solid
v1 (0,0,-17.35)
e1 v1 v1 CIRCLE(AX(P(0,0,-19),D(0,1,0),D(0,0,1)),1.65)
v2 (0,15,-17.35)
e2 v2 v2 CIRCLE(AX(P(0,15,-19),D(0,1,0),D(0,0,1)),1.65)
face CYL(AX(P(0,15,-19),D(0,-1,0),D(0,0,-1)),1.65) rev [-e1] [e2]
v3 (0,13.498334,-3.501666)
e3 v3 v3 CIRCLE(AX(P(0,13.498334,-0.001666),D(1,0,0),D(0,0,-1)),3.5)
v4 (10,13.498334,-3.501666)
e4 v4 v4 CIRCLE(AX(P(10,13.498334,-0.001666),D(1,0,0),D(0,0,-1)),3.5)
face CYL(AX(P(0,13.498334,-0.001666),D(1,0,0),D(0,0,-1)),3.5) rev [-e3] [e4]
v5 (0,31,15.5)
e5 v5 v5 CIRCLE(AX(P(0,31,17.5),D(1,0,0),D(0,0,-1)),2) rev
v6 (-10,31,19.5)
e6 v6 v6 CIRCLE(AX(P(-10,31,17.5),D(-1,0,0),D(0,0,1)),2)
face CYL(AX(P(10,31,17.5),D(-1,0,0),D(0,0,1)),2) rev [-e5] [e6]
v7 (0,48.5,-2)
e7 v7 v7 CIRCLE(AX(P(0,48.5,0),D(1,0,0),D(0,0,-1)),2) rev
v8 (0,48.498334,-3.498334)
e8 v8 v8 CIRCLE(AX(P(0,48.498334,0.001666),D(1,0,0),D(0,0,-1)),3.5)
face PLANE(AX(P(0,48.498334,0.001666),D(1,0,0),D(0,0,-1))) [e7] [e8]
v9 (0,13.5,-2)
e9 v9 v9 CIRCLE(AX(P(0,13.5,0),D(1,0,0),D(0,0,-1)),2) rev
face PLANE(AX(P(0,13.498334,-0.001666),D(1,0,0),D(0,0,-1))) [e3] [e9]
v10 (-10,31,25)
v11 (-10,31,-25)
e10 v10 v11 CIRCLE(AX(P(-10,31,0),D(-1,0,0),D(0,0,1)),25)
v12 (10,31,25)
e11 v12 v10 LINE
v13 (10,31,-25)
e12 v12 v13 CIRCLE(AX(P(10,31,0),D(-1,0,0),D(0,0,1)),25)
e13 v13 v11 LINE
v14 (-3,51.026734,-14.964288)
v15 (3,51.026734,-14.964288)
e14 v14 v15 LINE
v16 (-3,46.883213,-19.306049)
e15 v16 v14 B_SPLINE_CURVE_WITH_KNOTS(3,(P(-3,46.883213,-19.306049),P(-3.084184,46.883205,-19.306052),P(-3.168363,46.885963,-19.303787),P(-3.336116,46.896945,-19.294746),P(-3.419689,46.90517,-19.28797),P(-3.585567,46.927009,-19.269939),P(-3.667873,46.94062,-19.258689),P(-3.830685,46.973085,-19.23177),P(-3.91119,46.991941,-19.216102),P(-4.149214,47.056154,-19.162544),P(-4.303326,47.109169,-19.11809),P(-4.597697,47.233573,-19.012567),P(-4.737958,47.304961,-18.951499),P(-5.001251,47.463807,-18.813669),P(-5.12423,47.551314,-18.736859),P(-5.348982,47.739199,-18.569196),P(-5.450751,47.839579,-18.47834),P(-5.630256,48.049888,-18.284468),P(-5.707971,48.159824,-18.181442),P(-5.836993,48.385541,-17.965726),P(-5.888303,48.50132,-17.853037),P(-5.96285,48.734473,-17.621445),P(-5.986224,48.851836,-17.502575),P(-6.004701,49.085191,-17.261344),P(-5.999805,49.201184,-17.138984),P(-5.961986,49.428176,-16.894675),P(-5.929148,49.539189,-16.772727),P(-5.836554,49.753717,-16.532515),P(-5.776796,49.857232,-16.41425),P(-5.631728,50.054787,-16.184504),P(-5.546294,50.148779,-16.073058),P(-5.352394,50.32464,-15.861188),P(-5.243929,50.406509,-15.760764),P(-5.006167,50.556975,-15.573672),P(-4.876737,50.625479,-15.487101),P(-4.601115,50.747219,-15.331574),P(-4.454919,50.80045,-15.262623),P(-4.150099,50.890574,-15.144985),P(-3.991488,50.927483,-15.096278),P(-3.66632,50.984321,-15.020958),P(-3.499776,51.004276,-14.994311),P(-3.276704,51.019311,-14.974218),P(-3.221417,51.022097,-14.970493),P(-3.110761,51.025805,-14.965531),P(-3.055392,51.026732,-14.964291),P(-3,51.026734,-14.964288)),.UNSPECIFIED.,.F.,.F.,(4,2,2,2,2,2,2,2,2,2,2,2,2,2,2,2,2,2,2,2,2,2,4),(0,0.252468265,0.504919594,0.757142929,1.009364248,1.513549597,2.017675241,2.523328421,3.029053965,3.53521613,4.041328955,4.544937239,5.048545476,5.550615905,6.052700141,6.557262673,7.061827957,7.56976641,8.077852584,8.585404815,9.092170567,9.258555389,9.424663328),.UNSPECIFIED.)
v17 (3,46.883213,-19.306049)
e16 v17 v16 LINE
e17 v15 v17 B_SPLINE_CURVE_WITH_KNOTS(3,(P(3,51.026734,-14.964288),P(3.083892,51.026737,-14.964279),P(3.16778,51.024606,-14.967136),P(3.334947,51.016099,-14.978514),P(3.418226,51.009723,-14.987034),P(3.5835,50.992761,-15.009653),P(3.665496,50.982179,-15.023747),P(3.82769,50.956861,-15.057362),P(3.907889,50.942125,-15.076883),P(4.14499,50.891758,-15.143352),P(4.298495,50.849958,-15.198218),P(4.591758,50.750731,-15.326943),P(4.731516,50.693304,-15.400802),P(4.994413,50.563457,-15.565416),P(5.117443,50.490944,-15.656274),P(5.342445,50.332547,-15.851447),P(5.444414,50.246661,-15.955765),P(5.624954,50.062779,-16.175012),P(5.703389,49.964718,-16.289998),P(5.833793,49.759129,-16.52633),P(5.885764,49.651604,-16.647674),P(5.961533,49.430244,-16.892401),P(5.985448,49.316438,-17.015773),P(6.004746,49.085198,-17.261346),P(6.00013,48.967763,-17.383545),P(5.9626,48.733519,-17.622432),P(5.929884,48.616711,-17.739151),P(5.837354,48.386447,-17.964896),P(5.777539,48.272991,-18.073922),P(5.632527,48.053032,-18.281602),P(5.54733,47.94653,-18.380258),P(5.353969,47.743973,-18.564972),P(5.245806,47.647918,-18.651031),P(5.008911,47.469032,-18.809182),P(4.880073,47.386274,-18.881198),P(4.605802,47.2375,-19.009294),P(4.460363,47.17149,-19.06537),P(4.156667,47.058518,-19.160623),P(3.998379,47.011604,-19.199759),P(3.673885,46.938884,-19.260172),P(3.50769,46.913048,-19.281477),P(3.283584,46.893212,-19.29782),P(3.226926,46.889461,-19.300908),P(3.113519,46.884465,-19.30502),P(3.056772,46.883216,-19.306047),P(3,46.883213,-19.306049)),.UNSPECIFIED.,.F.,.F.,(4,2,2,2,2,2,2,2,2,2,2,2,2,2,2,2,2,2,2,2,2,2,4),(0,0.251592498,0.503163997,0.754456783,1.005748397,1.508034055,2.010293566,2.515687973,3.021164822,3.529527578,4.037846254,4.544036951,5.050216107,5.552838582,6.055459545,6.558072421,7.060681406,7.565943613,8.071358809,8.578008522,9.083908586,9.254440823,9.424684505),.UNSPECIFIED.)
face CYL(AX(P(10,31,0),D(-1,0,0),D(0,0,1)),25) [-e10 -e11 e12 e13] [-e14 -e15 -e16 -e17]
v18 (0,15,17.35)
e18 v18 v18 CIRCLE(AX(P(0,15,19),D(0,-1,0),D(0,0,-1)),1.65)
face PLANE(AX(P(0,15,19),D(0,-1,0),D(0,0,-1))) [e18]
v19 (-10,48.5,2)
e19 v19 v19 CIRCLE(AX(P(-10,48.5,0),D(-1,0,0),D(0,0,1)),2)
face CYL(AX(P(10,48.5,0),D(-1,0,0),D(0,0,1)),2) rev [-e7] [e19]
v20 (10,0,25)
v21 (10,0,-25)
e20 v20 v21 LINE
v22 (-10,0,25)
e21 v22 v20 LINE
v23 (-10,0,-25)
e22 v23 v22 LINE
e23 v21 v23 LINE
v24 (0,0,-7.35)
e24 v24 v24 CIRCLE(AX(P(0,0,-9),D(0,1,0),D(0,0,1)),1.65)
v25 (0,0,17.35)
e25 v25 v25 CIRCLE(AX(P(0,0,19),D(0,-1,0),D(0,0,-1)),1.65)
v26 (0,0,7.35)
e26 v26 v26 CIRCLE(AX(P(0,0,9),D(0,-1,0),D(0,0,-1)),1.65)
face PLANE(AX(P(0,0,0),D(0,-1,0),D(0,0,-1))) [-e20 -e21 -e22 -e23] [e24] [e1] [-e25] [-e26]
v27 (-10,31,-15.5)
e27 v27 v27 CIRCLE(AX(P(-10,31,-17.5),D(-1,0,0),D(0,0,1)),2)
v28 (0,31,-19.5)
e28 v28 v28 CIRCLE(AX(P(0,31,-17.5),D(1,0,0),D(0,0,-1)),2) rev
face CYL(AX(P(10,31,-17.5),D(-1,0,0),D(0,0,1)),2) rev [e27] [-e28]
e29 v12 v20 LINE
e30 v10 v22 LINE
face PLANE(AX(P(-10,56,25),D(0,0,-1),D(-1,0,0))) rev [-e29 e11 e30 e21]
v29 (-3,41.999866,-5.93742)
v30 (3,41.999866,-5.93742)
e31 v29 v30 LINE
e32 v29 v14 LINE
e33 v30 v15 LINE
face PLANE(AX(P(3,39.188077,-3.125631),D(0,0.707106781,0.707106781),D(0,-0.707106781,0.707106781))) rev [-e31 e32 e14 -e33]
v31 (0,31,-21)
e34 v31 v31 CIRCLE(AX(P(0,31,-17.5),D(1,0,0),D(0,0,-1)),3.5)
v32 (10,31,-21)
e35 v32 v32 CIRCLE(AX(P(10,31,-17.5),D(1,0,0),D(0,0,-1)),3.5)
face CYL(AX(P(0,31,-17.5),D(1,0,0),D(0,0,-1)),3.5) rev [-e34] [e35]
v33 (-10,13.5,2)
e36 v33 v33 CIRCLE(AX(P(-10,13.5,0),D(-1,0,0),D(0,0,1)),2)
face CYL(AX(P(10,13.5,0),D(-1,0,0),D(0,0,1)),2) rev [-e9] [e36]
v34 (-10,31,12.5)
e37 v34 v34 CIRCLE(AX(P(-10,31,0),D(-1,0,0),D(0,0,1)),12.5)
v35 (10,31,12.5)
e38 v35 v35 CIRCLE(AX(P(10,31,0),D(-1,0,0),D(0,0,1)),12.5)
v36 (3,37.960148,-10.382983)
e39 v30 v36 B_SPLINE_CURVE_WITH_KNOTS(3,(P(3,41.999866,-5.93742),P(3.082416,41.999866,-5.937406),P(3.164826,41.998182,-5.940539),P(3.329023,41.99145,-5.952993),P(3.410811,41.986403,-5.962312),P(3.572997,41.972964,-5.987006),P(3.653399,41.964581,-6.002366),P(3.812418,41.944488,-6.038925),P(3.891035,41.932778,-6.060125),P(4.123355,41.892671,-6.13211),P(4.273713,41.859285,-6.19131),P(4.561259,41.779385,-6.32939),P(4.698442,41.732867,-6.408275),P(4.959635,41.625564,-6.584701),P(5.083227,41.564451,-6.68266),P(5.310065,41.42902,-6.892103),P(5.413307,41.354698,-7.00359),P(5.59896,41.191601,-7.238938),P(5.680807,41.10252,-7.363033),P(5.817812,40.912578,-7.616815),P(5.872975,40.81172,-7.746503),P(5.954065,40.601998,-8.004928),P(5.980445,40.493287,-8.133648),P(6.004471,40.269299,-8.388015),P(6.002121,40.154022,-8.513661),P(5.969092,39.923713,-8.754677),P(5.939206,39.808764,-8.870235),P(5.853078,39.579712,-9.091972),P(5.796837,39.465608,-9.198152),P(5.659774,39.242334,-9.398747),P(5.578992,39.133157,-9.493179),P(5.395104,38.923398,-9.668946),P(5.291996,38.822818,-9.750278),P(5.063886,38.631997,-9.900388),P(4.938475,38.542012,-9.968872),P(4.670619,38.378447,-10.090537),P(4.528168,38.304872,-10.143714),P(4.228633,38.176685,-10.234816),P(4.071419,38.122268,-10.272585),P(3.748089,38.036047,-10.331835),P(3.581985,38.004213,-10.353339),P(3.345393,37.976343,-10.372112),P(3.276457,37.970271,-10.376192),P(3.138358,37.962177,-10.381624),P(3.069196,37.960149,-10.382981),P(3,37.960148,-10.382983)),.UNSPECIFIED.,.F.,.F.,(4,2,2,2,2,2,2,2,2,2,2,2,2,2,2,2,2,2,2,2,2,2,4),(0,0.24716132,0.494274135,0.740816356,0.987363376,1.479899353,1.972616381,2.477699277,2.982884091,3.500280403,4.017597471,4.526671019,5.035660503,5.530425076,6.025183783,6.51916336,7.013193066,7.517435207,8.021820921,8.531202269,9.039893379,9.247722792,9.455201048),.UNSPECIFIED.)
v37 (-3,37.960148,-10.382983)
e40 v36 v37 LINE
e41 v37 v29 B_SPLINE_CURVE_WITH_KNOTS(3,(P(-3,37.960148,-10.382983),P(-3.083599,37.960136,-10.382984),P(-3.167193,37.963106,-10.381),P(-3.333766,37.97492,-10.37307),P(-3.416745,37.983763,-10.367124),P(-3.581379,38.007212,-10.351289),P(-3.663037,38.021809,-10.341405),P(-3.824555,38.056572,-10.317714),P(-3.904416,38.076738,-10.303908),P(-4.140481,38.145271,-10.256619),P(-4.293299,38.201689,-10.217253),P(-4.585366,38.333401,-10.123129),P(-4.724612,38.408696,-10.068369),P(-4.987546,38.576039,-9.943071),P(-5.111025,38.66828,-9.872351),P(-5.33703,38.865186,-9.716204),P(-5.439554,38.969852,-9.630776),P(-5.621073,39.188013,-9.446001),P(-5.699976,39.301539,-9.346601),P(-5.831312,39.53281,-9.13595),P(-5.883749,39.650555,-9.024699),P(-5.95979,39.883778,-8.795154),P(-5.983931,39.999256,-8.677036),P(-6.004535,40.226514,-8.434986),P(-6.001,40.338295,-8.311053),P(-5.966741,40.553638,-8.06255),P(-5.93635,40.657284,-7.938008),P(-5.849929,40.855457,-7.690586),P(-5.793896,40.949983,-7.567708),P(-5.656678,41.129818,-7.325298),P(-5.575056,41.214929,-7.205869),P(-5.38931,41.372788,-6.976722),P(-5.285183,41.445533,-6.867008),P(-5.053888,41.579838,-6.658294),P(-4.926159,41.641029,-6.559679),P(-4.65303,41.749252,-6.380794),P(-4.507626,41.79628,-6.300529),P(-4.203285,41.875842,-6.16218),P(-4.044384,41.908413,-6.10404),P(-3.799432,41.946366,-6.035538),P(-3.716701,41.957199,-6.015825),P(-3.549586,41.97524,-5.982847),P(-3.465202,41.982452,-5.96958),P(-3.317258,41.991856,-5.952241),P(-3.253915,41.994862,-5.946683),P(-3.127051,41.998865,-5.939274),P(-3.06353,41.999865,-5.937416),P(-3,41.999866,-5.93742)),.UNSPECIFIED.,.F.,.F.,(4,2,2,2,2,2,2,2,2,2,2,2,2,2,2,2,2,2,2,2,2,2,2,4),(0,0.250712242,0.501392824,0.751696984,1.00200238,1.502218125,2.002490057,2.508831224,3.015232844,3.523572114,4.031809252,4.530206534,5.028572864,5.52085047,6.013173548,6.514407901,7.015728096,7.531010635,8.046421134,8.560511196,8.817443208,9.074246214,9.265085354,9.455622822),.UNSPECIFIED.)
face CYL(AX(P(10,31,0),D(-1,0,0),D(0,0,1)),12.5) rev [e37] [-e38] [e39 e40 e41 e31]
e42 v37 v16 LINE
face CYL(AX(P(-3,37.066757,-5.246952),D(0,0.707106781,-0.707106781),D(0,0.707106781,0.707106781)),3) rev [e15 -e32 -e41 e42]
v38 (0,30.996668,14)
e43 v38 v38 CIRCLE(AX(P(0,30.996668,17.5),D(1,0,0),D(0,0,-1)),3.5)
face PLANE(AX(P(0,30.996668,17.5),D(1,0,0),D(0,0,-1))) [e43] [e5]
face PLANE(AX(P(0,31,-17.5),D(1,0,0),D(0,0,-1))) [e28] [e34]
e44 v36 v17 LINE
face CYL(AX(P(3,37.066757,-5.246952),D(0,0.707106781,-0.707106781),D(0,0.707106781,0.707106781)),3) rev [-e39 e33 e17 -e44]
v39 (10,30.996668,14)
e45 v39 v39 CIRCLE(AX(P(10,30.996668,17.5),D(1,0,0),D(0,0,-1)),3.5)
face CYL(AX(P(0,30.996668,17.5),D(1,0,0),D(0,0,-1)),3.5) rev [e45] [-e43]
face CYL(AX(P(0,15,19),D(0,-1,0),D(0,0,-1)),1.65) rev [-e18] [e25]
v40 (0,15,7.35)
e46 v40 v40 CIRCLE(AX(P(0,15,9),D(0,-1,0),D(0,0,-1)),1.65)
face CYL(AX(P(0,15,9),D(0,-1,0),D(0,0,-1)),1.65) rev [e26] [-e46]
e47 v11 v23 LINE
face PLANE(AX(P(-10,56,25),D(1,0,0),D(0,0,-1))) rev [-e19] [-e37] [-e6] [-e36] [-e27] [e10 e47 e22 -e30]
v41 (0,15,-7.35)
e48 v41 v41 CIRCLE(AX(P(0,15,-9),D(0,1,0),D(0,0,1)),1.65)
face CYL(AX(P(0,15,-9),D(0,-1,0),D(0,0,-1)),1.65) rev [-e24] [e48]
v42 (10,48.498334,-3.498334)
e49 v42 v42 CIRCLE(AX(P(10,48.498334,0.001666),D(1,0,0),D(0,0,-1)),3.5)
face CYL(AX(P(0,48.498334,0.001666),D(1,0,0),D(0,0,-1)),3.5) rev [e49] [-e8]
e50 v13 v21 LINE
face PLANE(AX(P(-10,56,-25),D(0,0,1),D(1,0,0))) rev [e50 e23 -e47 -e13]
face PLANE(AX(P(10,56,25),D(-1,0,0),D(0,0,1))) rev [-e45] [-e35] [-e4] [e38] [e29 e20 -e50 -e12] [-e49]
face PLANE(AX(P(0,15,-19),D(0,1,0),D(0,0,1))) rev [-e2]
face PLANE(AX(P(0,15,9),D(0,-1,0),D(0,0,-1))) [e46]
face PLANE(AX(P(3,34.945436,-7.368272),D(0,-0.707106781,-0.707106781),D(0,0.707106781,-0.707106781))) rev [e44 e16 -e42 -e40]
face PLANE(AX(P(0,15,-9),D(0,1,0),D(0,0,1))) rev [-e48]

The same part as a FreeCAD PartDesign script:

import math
import FreeCAD as App
import Part
import Sketcher
from FreeCAD import Vector
Q = App.Units.Quantity

doc = App.newDocument("Part")
body = doc.addObject("PartDesign::Body", "Body")

# Sketch on XZ plane
sketch1 = body.newObject("Sketcher::SketchObject", "Sketch")
sketch1.AttachmentSupport = (doc.getObject("XZ_Plane"), [""])
sketch1.MapMode = "FlatFace"
sketch1.addGeometry(Part.LineSegment(Vector(-10, -25, 0), Vector(-10, 25, 0)), False)
sketch1.addGeometry(Part.LineSegment(Vector(-10, 25, 0), Vector(10, 25, 0)), False)
sketch1.addGeometry(Part.LineSegment(Vector(10, 25, 0), Vector(10, -25, 0)), False)
sketch1.addGeometry(Part.LineSegment(Vector(10, -25, 0), Vector(-10, -25, 0)), False)
sketch1.addConstraint(Sketcher.Constraint("Coincident", 0, 2, 1, 1))
sketch1.addConstraint(Sketcher.Constraint("Coincident", 1, 2, 2, 1))
sketch1.addConstraint(Sketcher.Constraint("Coincident", 2, 2, 3, 1))
sketch1.addConstraint(Sketcher.Constraint("Coincident", 3, 2, 0, 1))
sketch1.addConstraint(Sketcher.Constraint("Vertical", 0))
sketch1.addConstraint(Sketcher.Constraint("Horizontal", 1))
sketch1.addConstraint(Sketcher.Constraint("Vertical", 2))
sketch1.addConstraint(Sketcher.Constraint("Horizontal", 3))
sketch1.addConstraint(Sketcher.Constraint("Symmetric", 0, 2, 2, 2, -1, 1))
sketch1.addConstraint(Sketcher.Constraint("DistanceX", 1, 1, 1, 2, Q("20 mm")))
sketch1.addConstraint(Sketcher.Constraint("DistanceY", 0, 1, 0, 2, Q("50 mm")))
pad1 = body.newObject("PartDesign::Pad", "Pad")
pad1.Profile = sketch1
pad1.Length = 56
pad1.Reversed = True

# Sketch on YZ plane
sketch2 = body.newObject("Sketcher::SketchObject", "Sketch001")
sketch2.AttachmentSupport = (doc.getObject("YZ_Plane"), [""])
sketch2.MapMode = "FlatFace"
sketch2.AttachmentOffset = App.Placement(Vector(0, 0, -10), App.Rotation())
sketch2.addGeometry(Part.LineSegment(Vector(56, -25, 0), Vector(31, -25, 0)), False)
sketch2.addGeometry(Part.ArcOfCircle(Part.Circle(Vector(31, 0, 0), Vector(0, 0, 1), 25), math.radians(-90), math.radians(0)), False)
sketch2.addGeometry(Part.LineSegment(Vector(56, 0, 0), Vector(56, -25, 0)), False)
sketch2.addGeometry(Part.ArcOfCircle(Part.Circle(Vector(31, 0, 0), Vector(0, 0, 1), 25), math.radians(0), math.radians(90)), False)
sketch2.addGeometry(Part.LineSegment(Vector(31, 25, 0), Vector(56, 25, 0)), False)
sketch2.addGeometry(Part.LineSegment(Vector(56, 25, 0), Vector(56, 0, 0)), False)
sketch2.addGeometry(Part.Circle(Vector(31, 0, 0), Vector(0, 0, 1), 12.5), False)
sketch2.addGeometry(Part.Circle(Vector(31, 17.5, 0), Vector(0, 0, 1), 2), False)
sketch2.addGeometry(Part.Circle(Vector(48.5, 0, 0), Vector(0, 0, 1), 2), False)
sketch2.addGeometry(Part.Circle(Vector(13.5, 0, 0), Vector(0, 0, 1), 2), False)
sketch2.addGeometry(Part.Circle(Vector(31, -17.5, 0), Vector(0, 0, 1), 2), False)
sketch2.addConstraint(Sketcher.Constraint("Tangent", 0, 2, 1, 1))
sketch2.addConstraint(Sketcher.Constraint("Tangent", 1, 2, 2, 1))
sketch2.addConstraint(Sketcher.Constraint("Coincident", 2, 2, 0, 1))
sketch2.addConstraint(Sketcher.Constraint("Tangent", 3, 2, 4, 1))
sketch2.addConstraint(Sketcher.Constraint("Coincident", 4, 2, 5, 1))
sketch2.addConstraint(Sketcher.Constraint("Tangent", 5, 2, 3, 1))
sketch2.addConstraint(Sketcher.Constraint("Horizontal", 0))
sketch2.addConstraint(Sketcher.Constraint("Vertical", 2))
sketch2.addConstraint(Sketcher.Constraint("Horizontal", 4))
sketch2.addConstraint(Sketcher.Constraint("Vertical", 5))
sketch2.addConstraint(Sketcher.Constraint("Coincident", 3, 3, 1, 3))
sketch2.addConstraint(Sketcher.Constraint("Coincident", 6, 3, 1, 3))
sketch2.addConstraint(Sketcher.Constraint("Equal", 1, 3))
sketch2.addConstraint(Sketcher.Constraint("Equal", 7, 8))
sketch2.addConstraint(Sketcher.Constraint("Equal", 8, 9))
sketch2.addConstraint(Sketcher.Constraint("Equal", 9, 10))
sketch2.addConstraint(Sketcher.Constraint("Symmetric", 7, 3, 10, 3, -1))
sketch2.addConstraint(Sketcher.Constraint("PointOnObject", 1, 3, -1))
sketch2.addConstraint(Sketcher.Constraint("PointOnObject", 8, 3, -1))
sketch2.addConstraint(Sketcher.Constraint("PointOnObject", 9, 3, -1))
sketch2.addConstraint(Sketcher.Constraint("Vertical", 6, 3, 7, 3))
sketch2.addConstraint(Sketcher.Constraint("Diameter", 6, Q("25 mm")))
sketch2.addConstraint(Sketcher.Constraint("Diameter", 7, Q("4 mm")))
sketch2.addConstraint(Sketcher.Constraint("Radius", 1, Q("25 mm")))
sketch2.addConstraint(Sketcher.Constraint("DistanceX", -1, 1, 1, 3, Q("31 mm")))
sketch2.addConstraint(Sketcher.Constraint("DistanceX", 9, 3, 8, 3, Q("35 mm")))
sketch2.addConstraint(Sketcher.Constraint("DistanceY", -1, 1, 7, 3, Q("17.5 mm")))
sketch2.addConstraint(Sketcher.Constraint("DistanceX", -1, 1, 8, 3, Q("48.5 mm")))
pocket1 = body.newObject("PartDesign::Pocket", "Pocket")
pocket1.Profile = sketch2
pocket1.Type = "ThroughAll"
pocket1.Reversed = True

# Sketch on XZ plane
sketch3 = body.newObject("Sketcher::SketchObject", "Sketch002")
sketch3.AttachmentSupport = (doc.getObject("XZ_Plane"), [""])
sketch3.MapMode = "FlatFace"
sketch3.addGeometry(Part.Circle(Vector(0, 19, 0), Vector(0, 0, 1), 1.6), False)
sketch3.addGeometry(Part.Circle(Vector(0, 9, 0), Vector(0, 0, 1), 1.6), False)
sketch3.addGeometry(Part.Circle(Vector(0, -9, 0), Vector(0, 0, 1), 1.6), False)
sketch3.addGeometry(Part.Circle(Vector(0, -19, 0), Vector(0, 0, 1), 1.6), False)
sketch3.addConstraint(Sketcher.Constraint("Equal", 0, 1))
sketch3.addConstraint(Sketcher.Constraint("Equal", 1, 2))
sketch3.addConstraint(Sketcher.Constraint("Equal", 2, 3))
sketch3.addConstraint(Sketcher.Constraint("Symmetric", 1, 3, 2, 3, -1, 1))
sketch3.addConstraint(Sketcher.Constraint("Symmetric", 0, 3, 3, 3, -1, 1))
sketch3.addConstraint(Sketcher.Constraint("PointOnObject", 0, 3, -2))
sketch3.addConstraint(Sketcher.Constraint("PointOnObject", 1, 3, -2))
sketch3.addConstraint(Sketcher.Constraint("Diameter", 0, Q("3.3 mm")))
sketch3.addConstraint(Sketcher.Constraint("DistanceY", -1, 1, 0, 3, Q("19 mm")))
sketch3.addConstraint(Sketcher.Constraint("DistanceY", -1, 1, 1, 3, Q("9 mm")))
pocket2 = body.newObject("PartDesign::Pocket", "Pocket001")
pocket2.Profile = sketch3
pocket2.Length = 15

# Sketch on YZ plane
sketch4 = body.newObject("Sketcher::SketchObject", "Sketch003")
sketch4.AttachmentSupport = (doc.getObject("YZ_Plane"), [""])
sketch4.MapMode = "FlatFace"
sketch4.AttachmentOffset = App.Placement(Vector(0, 0, 10), App.Rotation())
sketch4.addGeometry(Part.Circle(Vector(31, -17.5, 0), Vector(0, 0, 1), 3.5), False)
sketch4.addGeometry(Part.Circle(Vector(13.5, 0, 0), Vector(0, 0, 1), 3.5), False)
sketch4.addGeometry(Part.Circle(Vector(31, 17.5, 0), Vector(0, 0, 1), 3.5), False)
sketch4.addGeometry(Part.Circle(Vector(48.5, 0, 0), Vector(0, 0, 1), 3.5), False)
sketch4.addConstraint(Sketcher.Constraint("Equal", 0, 1))
sketch4.addConstraint(Sketcher.Constraint("Equal", 1, 2))
sketch4.addConstraint(Sketcher.Constraint("Equal", 2, 3))
sketch4.addConstraint(Sketcher.Constraint("Diameter", 0, Q("7 mm")))
sketch4.addConstraint(Sketcher.Constraint("DistanceX", -1, 1, 0, 3, Q("31 mm")))
sketch4.addConstraint(Sketcher.Constraint("DistanceY", 0, 3, 2, 3, Q("35 mm")))
sketch4.addConstraint(Sketcher.Constraint("DistanceX", 1, 3, 3, 3, Q("35 mm")))
sketch4.addConstraint(Sketcher.Constraint("DistanceY", 0, 3, -1, 1, Q("17.5 mm")))
sketch4.addConstraint(Sketcher.Constraint("DistanceX", -1, 1, 1, 3, Q("13.498334 mm")))
sketch4.addConstraint(Sketcher.Constraint("DistanceY", 1, 3, -1, 1, Q("0.001666 mm")))
sketch4.addConstraint(Sketcher.Constraint("DistanceX", -1, 1, 2, 3, Q("30.996668 mm")))
sketch4.addConstraint(Sketcher.Constraint("DistanceY", -1, 1, 3, 3, Q("0.001666 mm")))
pocket3 = body.newObject("PartDesign::Pocket", "Pocket002")
pocket3.Profile = sketch4
pocket3.Length = 10

# Sketch on an angled plane
sketch5 = body.newObject("Sketcher::SketchObject", "Sketch004")
sketch5.Placement = App.Placement(Vector(0, 33.17767, -33.17767), App.Rotation(Vector(-1, 0, 0), Vector(0, 0.707106781, 0.707106781), Vector(0, 0.707106781, -0.707106781), "ZXY"))
sketch5.addGeometry(Part.LineSegment(Vector(3, 25.5, 0), Vector(-3, 25.5, 0)), False)
sketch5.addGeometry(Part.ArcOfCircle(Part.Circle(Vector(-3, 22.5, 0), Vector(0, 0, 1), 3), math.radians(90), math.radians(270)), False)
sketch5.addGeometry(Part.LineSegment(Vector(-3, 19.5, 0), Vector(3, 19.5, 0)), False)
sketch5.addGeometry(Part.ArcOfCircle(Part.Circle(Vector(3, 22.5, 0), Vector(0, 0, 1), 3), math.radians(-90), math.radians(90)), False)
sketch5.addConstraint(Sketcher.Constraint("Tangent", 0, 2, 1, 1))
sketch5.addConstraint(Sketcher.Constraint("Tangent", 1, 2, 2, 1))
sketch5.addConstraint(Sketcher.Constraint("Tangent", 2, 2, 3, 1))
sketch5.addConstraint(Sketcher.Constraint("Tangent", 3, 2, 0, 1))
sketch5.addConstraint(Sketcher.Constraint("Horizontal", 0))
sketch5.addConstraint(Sketcher.Constraint("Horizontal", 2))
sketch5.addConstraint(Sketcher.Constraint("Radius", 1, Q("3 mm")))
sketch5.addConstraint(Sketcher.Constraint("DistanceX", 0, 2, 0, 1, Q("6 mm")))
sketch5.addConstraint(Sketcher.Constraint("DistanceX", 1, 3, -1, 1, Q("3 mm")))
sketch5.addConstraint(Sketcher.Constraint("DistanceY", -1, 1, 1, 3, Q("22.5 mm")))
pocket4 = body.newObject("PartDesign::Pocket", "Pocket003")
pocket4.Profile = sketch5
pocket4.Length = 17

doc.recompute()
